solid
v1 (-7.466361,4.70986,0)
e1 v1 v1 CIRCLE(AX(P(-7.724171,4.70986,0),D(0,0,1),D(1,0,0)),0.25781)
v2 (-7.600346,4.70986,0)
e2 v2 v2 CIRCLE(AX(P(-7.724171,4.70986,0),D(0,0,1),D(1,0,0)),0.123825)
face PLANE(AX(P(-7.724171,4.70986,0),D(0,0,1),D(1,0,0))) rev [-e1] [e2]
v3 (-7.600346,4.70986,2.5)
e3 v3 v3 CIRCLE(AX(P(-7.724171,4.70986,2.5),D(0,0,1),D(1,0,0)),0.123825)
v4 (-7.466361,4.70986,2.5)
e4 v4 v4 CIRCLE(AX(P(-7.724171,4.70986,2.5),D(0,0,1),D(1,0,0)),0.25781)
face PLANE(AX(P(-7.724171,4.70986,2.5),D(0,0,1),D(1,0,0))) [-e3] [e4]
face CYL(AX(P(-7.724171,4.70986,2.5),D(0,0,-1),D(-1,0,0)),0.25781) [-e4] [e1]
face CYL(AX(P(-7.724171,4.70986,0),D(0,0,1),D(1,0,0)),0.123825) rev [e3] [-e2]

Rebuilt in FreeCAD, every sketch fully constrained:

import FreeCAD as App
import Part
import Sketcher
Q = App.Units.Quantity

doc = App.newDocument("Part")
params = doc.addObject("Spreadsheet::Sheet", "Params")
for row, (alias, value) in enumerate([
    ("pad1_length", "2.5 mm"),
    ("pocket1_length", "2.5 mm"),
], start=1):
    params.set(f"A{row}", alias)
    params.set(f"B{row}", "=" + value)
    params.setAlias(f"B{row}", alias)

body = doc.addObject("PartDesign::Body", "Body")

# Sketch on XY plane
sketch1 = body.newObject("Sketcher::SketchObject", "Sketch")
sketch1.AttachmentSupport = (doc.getObject("XY_Plane"), [""])
sketch1.MapMode = "FlatFace"
sketch1.addGeometry(Part.Circle(App.Vector(-7.72, 4.71, 0), App.Vector(0, 0, 1), 0.26), False)
sketch1.addConstraint([
    Sketcher.Constraint("Diameter", 0, Q("0.51562 mm")),
    Sketcher.Constraint("DistanceX", 0, 3, -1, 1, Q("7.724171 mm")),
    Sketcher.Constraint("DistanceY", -1, 1, 0, 3, Q("4.70986 mm")),
])
pad1 = body.newObject("PartDesign::Pad", "Pad")
pad1.Profile = sketch1
pad1.setExpression("Length", "Params.pad1_length")

# Sketch on XY plane
sketch2 = body.newObject("Sketcher::SketchObject", "Sketch001")
sketch2.AttachmentSupport = (doc.getObject("XY_Plane"), [""])
sketch2.MapMode = "FlatFace"
sketch2.AttachmentOffset = App.Placement(App.Vector(0, 0, 2.5), App.Rotation())
sketch2.addGeometry(Part.Circle(App.Vector(-7.72, 4.71, 0), App.Vector(0, 0, 1), 0.12), False)
sketch2.addConstraint([
    Sketcher.Constraint("Diameter", 0, Q("0.24765 mm")),
    Sketcher.Constraint("DistanceX", 0, 3, -1, 1, Q("7.724171 mm")),
    Sketcher.Constraint("DistanceY", -1, 1, 0, 3, Q("4.70986 mm")),
])
pocket1 = body.newObject("PartDesign::Pocket", "Pocket")
pocket1.Profile = sketch2
pocket1.setExpression("Length", "Params.pocket1_length")

doc.recompute()
